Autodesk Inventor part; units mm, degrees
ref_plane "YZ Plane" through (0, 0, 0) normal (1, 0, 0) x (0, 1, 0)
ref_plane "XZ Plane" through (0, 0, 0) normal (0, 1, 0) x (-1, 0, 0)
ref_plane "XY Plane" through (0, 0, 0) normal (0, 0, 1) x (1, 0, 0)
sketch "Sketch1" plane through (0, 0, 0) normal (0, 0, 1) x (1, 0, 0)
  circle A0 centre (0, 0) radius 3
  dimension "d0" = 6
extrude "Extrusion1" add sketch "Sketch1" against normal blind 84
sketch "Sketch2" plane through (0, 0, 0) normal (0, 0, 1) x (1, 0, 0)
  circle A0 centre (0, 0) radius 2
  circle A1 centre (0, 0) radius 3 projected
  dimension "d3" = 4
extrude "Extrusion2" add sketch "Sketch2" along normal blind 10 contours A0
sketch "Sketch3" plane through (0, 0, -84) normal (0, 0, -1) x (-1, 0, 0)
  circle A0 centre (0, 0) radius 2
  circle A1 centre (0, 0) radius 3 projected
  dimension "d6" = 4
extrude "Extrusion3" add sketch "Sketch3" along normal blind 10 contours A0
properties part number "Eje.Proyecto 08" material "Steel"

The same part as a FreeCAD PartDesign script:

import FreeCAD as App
import Part
import Sketcher
from FreeCAD import Vector
Q = App.Units.Quantity

doc = App.newDocument("Part")
body = doc.addObject("PartDesign::Body", "Body")

sketch1 = doc.addObject("Sketcher::SketchObject", "Sketch")
body.addObject(sketch1)
sketch1.AttachmentSupport = (doc.XY_Plane, [""])
sketch1.MapMode = "FlatFace"
sketch1.addGeometry(Part.Circle(Vector(0, 0, 0), Vector(0, 0, 1), 3), False)
sketch1.addConstraint([
    Sketcher.Constraint("Coincident", 0, 3, -1, 1),
    Sketcher.Constraint("Diameter", 0, Q("6 mm")),
])
pad1 = doc.addObject("PartDesign::Pad", "Pad")
body.addObject(pad1)
pad1.Profile = sketch1
pad1.Length = 84
pad1.Reversed = True

sketch2 = doc.addObject("Sketcher::SketchObject", "Sketch001")
body.addObject(sketch2)
sketch2.AttachmentSupport = (doc.XY_Plane, [""])
sketch2.MapMode = "FlatFace"
sketch2.addGeometry(Part.Circle(Vector(0, 0, 0), Vector(0, 0, 1), 2), False)
sketch2.addConstraint([
    Sketcher.Constraint("Coincident", 0, 3, -1, 1),
    Sketcher.Constraint("Diameter", 0, Q("4 mm")),
])
pad2 = doc.addObject("PartDesign::Pad", "Pad001")
body.addObject(pad2)
pad2.Profile = sketch2
pad2.Length = 10

sketch3 = doc.addObject("Sketcher::SketchObject", "Sketch002")
body.addObject(sketch3)
sketch3.AttachmentSupport = (doc.XY_Plane, [""])
sketch3.MapMode = "FlatFace"
sketch3.AttachmentOffset = App.Placement(Vector(0, 0, -84), App.Rotation())
sketch3.addGeometry(Part.Circle(Vector(0, 0, 0), Vector(0, 0, 1), 2), False)
sketch3.addConstraint([
    Sketcher.Constraint("Coincident", 0, 3, -1, 1),
    Sketcher.Constraint("Diameter", 0, Q("4 mm")),
])
pad3 = doc.addObject("PartDesign::Pad", "Pad002")
body.addObject(pad3)
pad3.Profile = sketch3
pad3.Length = 10
pad3.Reversed = True

doc.recompute()
